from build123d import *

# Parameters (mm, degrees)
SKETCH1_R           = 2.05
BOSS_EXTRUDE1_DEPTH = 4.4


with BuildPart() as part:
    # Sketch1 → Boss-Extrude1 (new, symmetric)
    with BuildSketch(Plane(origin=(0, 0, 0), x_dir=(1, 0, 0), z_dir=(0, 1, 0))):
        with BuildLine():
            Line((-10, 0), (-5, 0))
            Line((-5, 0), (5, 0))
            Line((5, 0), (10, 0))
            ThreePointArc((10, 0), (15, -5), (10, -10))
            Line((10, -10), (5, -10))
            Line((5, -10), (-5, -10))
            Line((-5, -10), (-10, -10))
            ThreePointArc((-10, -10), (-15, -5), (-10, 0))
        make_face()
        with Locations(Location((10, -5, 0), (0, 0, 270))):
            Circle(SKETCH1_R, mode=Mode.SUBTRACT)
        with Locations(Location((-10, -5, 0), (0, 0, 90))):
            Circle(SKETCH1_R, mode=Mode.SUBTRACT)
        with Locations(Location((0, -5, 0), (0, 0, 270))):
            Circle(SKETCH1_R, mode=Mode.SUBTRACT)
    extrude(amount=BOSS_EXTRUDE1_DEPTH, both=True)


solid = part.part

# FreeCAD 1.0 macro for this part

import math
import FreeCAD as App
import Part
import Sketcher

V = App.Vector
Q = App.Units.Quantity

doc = App.newDocument("Part")
params = doc.addObject("Spreadsheet::Sheet", "Params")
for row, (alias, value) in enumerate([
    ("sketch1_radius", "5 mm"),
    ("sketch1_diameter", "4.1 mm"),
    ("sketch1_width", "20 mm"),
    ("pad1_length", "8.8 mm"),
], start=1):
    params.set(f"A{row}", alias)
    params.set(f"B{row}", "=" + value)
    params.setAlias(f"B{row}", alias)

body = doc.addObject("PartDesign::Body", "Body")

# Sketch on XZ plane
sketch1 = body.newObject("Sketcher::SketchObject", "Sketch")
sketch1.AttachmentSupport = (doc.getObject("XZ_Plane"), [""])
sketch1.MapMode = "FlatFace"
sketch1.addGeometry(Part.LineSegment(V(10, 0, 0), V(-10, 0, 0)), False)
sketch1.addGeometry(Part.ArcOfCircle(Part.Circle(V(-10, 5, 0), V(0, 0, 1), 5), math.radians(90), math.radians(270)), False)
sketch1.addGeometry(Part.LineSegment(V(-10, 10, 0), V(10, 10, 0)), False)
sketch1.addGeometry(Part.ArcOfCircle(Part.Circle(V(10, 5, 0), V(0, 0, 1), 5), math.radians(-90), math.radians(90)), False)
sketch1.addGeometry(Part.Circle(V(10, 5, 0), V(0, 0, 1), 2), False)
sketch1.addGeometry(Part.Circle(V(0, 5, 0), V(0, 0, 1), 2), False)
sketch1.addGeometry(Part.Circle(V(-10, 5, 0), V(0, 0, 1), 2), False)
sketch1.addConstraint(Sketcher.Constraint("Tangent", 0, 2, 1, 2))
sketch1.addConstraint(Sketcher.Constraint("Tangent", 1, 1, 2, 1))
sketch1.addConstraint(Sketcher.Constraint("Tangent", 2, 2, 3, 2))
sketch1.addConstraint(Sketcher.Constraint("Tangent", 3, 1, 0, 1))
sketch1.addConstraint(Sketcher.Constraint("Horizontal", 0))
sketch1.addConstraint(Sketcher.Constraint("Horizontal", 2))
sketch1.addConstraint(Sketcher.Constraint("Coincident", 4, 3, 3, 3))
sketch1.addConstraint(Sketcher.Constraint("Coincident", 6, 3, 1, 3))
sketch1.addConstraint(Sketcher.Constraint("Equal", 4, 5))
sketch1.addConstraint(Sketcher.Constraint("Equal", 5, 6))
sketch1.addConstraint(Sketcher.Constraint("Symmetric", 0, 2, 3, 1, -1, 1))
sketch1.addConstraint(Sketcher.Constraint("PointOnObject", 5, 3, -2))
sketch1.addConstraint(Sketcher.Constraint("Horizontal", 4, 3, 5, 3))
sketch1.addConstraint(Sketcher.Constraint("Radius", 1, Q("5 mm")))
sketch1.addConstraint(Sketcher.Constraint("Diameter", 4, Q("4.1 mm")))
sketch1.addConstraint(Sketcher.Constraint("DistanceX", 0, 2, 0, 1, Q("20 mm")))
sketch1.setExpression("Constraints[13]", "Params.sketch1_radius")
sketch1.setExpression("Constraints[14]", "Params.sketch1_diameter")
sketch1.setExpression("Constraints[15]", "Params.sketch1_width")
pad1 = body.newObject("PartDesign::Pad", "Pad")
pad1.Profile = sketch1
pad1.setExpression("Length", "Params.pad1_length")
pad1.Midplane = True

doc.recompute()
